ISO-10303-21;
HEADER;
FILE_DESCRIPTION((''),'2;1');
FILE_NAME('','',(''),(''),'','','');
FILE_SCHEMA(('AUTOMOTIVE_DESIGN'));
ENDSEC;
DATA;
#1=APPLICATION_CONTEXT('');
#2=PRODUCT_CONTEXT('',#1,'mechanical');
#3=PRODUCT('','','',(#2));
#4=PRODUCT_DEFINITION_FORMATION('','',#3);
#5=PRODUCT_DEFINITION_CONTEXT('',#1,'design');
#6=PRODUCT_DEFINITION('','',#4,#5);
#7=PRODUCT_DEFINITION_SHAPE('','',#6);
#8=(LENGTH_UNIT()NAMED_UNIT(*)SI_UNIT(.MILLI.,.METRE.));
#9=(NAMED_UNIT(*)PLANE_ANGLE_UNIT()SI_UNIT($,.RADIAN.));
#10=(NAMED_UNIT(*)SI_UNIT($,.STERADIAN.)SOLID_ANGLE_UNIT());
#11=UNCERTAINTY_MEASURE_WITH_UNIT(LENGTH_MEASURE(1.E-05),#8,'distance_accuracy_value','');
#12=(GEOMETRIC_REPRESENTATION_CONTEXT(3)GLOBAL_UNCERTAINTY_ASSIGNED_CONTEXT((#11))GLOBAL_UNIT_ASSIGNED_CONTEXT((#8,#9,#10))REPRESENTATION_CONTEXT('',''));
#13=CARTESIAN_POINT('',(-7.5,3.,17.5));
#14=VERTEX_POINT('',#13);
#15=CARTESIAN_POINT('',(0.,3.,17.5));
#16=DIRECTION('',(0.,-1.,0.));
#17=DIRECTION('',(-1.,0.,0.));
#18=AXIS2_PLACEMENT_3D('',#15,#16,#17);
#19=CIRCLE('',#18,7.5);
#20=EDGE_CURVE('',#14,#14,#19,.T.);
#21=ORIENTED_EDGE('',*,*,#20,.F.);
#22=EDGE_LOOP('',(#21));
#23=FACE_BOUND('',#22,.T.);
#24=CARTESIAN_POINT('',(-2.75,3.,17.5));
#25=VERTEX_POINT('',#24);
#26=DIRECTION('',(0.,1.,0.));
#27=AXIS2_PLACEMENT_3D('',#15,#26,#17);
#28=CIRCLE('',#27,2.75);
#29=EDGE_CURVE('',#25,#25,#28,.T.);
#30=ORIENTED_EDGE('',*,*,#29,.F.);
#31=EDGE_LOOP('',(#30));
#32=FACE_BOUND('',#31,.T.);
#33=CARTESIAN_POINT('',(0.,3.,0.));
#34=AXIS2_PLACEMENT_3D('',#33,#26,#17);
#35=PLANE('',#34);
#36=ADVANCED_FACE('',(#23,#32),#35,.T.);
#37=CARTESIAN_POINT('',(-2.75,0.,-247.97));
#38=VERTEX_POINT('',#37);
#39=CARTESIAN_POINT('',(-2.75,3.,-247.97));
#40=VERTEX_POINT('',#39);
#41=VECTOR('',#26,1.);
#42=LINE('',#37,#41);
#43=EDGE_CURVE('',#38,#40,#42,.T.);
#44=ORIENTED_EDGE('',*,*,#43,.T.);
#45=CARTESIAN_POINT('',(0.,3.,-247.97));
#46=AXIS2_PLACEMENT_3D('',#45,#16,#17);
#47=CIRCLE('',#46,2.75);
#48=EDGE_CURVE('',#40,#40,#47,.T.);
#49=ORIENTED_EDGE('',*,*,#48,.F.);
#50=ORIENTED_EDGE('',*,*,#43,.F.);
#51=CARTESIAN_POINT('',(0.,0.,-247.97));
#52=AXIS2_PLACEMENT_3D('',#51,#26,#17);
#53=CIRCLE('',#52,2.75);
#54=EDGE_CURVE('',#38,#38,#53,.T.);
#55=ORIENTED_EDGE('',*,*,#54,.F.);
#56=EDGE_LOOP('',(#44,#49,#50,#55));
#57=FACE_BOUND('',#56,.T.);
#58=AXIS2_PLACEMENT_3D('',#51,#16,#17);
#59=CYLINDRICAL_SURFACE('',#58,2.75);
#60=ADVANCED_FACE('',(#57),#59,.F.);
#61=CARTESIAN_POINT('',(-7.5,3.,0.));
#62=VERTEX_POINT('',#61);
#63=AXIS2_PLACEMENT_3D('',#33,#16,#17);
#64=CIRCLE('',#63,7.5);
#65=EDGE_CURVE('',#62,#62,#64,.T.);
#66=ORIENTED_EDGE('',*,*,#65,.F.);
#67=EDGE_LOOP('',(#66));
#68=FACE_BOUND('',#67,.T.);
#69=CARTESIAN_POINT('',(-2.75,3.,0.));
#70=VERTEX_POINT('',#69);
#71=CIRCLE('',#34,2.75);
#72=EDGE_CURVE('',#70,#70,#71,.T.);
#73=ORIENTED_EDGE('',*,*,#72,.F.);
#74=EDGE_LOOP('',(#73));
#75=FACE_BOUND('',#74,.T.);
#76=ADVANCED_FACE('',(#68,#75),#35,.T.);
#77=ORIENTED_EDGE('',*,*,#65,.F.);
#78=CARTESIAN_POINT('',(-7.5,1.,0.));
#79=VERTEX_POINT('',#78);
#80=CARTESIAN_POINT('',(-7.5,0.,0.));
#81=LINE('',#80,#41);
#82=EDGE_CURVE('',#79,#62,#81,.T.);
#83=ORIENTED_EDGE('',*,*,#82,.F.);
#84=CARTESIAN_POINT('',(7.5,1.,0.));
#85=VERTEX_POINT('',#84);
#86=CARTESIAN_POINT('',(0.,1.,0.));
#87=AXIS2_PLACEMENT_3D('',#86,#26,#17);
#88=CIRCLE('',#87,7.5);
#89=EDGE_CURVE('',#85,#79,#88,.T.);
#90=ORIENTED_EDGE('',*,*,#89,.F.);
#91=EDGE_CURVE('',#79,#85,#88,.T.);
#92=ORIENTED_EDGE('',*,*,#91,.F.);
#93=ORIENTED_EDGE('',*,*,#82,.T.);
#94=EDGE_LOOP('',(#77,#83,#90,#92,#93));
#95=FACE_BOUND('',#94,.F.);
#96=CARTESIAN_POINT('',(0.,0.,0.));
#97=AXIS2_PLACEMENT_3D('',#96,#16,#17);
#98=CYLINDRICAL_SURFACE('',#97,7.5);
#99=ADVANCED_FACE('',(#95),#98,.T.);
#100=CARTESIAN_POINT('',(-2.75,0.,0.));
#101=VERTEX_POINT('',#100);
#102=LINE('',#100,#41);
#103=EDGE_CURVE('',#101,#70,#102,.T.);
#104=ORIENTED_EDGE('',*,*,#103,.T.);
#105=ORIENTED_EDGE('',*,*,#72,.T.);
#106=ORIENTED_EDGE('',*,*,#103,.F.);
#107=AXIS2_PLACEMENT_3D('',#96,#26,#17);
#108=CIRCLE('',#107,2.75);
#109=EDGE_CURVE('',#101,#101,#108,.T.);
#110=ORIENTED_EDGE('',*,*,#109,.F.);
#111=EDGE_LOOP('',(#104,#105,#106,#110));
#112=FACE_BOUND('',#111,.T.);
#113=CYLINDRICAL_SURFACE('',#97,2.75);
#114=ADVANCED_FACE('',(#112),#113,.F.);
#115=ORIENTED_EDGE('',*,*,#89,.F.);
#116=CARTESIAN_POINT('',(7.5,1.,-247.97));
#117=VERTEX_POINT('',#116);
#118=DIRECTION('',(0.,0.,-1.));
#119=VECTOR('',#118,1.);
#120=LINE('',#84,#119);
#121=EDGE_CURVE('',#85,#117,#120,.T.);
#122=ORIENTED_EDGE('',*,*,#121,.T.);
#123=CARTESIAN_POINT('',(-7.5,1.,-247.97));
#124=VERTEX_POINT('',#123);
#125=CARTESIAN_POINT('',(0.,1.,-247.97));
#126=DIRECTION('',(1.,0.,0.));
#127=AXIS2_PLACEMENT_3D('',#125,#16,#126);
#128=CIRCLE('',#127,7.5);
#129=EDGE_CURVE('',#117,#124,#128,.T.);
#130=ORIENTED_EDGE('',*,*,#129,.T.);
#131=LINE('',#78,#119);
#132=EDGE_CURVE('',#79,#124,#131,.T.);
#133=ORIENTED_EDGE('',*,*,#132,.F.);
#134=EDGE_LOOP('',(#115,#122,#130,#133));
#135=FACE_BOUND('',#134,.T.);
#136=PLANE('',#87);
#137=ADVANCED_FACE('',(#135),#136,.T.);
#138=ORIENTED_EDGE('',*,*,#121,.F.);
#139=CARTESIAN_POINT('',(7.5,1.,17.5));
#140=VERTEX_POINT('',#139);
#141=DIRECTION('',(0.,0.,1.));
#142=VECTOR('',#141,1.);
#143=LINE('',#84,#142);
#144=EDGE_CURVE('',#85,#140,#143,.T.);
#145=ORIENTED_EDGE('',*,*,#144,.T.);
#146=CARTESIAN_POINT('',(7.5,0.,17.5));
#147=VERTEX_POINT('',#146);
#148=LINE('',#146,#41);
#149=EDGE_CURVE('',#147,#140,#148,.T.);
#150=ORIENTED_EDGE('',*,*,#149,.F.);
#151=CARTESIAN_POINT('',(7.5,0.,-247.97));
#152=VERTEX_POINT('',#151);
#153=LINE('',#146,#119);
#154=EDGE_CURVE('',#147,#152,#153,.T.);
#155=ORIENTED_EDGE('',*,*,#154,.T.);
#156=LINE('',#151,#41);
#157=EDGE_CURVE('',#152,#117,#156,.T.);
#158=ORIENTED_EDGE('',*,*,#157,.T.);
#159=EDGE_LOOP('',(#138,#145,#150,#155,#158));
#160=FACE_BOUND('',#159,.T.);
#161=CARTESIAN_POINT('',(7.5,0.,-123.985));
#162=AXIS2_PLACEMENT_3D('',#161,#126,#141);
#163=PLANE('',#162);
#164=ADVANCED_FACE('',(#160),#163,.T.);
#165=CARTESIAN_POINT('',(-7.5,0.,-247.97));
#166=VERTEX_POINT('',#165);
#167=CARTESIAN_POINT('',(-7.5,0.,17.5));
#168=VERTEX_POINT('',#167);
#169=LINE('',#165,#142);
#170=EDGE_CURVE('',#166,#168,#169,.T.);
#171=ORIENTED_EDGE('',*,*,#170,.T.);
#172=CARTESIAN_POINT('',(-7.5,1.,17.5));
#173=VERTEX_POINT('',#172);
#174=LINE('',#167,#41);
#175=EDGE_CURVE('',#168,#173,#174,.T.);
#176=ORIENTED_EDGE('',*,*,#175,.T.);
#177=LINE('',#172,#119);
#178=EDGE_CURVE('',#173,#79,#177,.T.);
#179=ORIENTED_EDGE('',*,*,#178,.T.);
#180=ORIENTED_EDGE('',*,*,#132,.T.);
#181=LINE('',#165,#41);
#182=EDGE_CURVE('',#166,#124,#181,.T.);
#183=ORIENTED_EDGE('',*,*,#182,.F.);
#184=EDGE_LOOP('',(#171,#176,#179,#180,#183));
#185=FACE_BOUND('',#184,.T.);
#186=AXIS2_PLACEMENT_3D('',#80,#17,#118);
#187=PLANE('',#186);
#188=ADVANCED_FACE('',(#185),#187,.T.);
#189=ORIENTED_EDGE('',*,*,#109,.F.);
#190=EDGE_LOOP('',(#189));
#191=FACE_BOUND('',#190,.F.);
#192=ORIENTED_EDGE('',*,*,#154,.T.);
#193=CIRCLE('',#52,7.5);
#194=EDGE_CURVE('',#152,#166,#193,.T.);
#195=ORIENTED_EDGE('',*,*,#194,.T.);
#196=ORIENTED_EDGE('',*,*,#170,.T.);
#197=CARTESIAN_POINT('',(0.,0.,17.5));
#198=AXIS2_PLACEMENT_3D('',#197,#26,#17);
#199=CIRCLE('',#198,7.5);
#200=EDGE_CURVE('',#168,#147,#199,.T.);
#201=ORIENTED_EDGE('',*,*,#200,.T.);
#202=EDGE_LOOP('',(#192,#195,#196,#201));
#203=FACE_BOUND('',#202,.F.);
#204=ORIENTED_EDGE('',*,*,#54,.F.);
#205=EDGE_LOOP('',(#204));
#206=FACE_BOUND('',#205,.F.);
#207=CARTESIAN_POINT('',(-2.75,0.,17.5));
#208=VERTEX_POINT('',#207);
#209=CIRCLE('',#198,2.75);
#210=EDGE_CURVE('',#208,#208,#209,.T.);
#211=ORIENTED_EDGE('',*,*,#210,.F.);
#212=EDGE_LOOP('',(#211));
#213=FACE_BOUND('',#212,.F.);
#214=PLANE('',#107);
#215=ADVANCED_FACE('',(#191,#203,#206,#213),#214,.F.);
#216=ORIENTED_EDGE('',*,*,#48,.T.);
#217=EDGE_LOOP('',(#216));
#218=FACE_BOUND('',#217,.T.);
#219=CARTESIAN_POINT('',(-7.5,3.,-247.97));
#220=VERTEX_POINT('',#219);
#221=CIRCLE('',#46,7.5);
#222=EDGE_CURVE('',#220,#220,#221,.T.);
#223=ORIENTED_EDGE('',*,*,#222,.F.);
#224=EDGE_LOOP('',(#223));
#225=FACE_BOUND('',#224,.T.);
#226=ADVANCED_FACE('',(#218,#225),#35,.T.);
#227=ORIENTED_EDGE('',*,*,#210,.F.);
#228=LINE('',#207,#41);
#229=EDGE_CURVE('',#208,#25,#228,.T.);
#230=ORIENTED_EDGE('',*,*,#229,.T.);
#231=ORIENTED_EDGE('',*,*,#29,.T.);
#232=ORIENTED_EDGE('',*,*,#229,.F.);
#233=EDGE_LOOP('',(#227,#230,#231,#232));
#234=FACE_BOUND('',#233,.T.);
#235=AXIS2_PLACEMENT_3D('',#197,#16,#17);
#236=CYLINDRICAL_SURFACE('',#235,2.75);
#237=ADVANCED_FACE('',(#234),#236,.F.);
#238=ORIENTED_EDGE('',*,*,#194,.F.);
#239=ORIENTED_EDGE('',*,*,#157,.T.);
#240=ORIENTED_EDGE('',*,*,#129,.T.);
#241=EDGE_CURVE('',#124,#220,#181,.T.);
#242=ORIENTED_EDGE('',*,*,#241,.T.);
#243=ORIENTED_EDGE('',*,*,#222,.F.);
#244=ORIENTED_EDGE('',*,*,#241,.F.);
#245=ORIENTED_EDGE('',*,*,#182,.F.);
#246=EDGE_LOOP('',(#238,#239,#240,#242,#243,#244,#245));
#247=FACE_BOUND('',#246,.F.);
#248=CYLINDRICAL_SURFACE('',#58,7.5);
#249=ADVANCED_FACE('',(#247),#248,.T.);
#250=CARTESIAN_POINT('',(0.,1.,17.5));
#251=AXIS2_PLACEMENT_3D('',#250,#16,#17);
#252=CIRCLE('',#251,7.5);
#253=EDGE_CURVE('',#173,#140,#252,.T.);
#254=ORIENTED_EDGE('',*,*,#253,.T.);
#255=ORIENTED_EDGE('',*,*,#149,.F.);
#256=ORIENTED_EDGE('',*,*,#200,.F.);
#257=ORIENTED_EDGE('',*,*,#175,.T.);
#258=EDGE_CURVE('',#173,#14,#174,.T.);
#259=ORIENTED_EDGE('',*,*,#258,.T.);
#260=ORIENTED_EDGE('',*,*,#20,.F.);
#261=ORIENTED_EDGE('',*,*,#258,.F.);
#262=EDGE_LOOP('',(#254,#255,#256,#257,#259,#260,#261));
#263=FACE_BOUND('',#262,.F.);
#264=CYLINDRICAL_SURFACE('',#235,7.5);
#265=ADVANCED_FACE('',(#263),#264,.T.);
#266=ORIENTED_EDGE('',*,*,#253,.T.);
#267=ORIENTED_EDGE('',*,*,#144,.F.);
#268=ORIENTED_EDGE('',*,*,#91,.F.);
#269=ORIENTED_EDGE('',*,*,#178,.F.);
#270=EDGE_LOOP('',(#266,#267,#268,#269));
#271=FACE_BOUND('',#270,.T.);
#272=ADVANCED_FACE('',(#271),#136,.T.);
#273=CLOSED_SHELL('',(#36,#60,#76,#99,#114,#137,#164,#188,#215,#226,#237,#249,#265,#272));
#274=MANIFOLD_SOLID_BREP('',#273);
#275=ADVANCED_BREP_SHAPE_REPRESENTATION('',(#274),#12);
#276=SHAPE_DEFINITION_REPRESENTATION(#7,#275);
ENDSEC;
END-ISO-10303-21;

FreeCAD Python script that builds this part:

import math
import FreeCAD as App
import Part
import Sketcher
Q = App.Units.Quantity

doc = App.newDocument("Part")
params = doc.addObject("Spreadsheet::Sheet", "Params")
for row, (alias, value) in enumerate([
    ("sketch1_diameter", "15 mm"),
    ("sketch1_diameter2", "5.5 mm"),
    ("pad1_length", "3 mm"),
    ("sketch2_diameter", "5.5 mm"),
    ("sketch2_radius", "7.5 mm"),
    ("sketch2_height", "17.5 mm"),
    ("sketch2_height2", "247.97 mm"),
    ("pad2_length", "1 mm"),
], start=1):
    params.set(f"A{row}", alias)
    params.set(f"B{row}", "=" + value)
    params.setAlias(f"B{row}", alias)

body = doc.addObject("PartDesign::Body", "Body")
body.AllowCompound = True

sketch1 = body.newObject("Sketcher::SketchObject", "Sketch")
sketch1.AttachmentSupport = (doc.getObject("XZ_Plane"), [""])
sketch1.MapMode = "FlatFace"
sketch1.addGeometry([
    Part.Circle(App.Vector(0, 0, 0), App.Vector(0, 0, 1), 7.5),
    Part.Circle(App.Vector(0, 0, 0), App.Vector(0, 0, 1), 2.8),
    Part.Circle(App.Vector(0, -248, 0), App.Vector(0, 0, 1), 7.5),
    Part.Circle(App.Vector(0, -248, 0), App.Vector(0, 0, 1), 2.8),
    Part.Circle(App.Vector(0, 17.5, 0), App.Vector(0, 0, 1), 7.5),
    Part.Circle(App.Vector(0, 17.5, 0), App.Vector(0, 0, 1), 2.8),
], False)
sketch1.addConstraint([
    Sketcher.Constraint("Coincident", 0, 3, -1, 1),
    Sketcher.Constraint("Coincident", 1, 3, -1, 1),
    Sketcher.Constraint("Coincident", 3, 3, 2, 3),
    Sketcher.Constraint("Coincident", 5, 3, 4, 3),
    Sketcher.Constraint("Equal", 0, 2),
    Sketcher.Constraint("Equal", 1, 3),
    Sketcher.Constraint("Equal", 2, 4),
    Sketcher.Constraint("Equal", 3, 5),
    Sketcher.Constraint("PointOnObject", 2, 3, -2),
    Sketcher.Constraint("PointOnObject", 4, 3, -2),
    Sketcher.Constraint("Diameter", 0, Q("15 mm")),
    Sketcher.Constraint("Diameter", 1, Q("5.5 mm")),
    Sketcher.Constraint("DistanceY", -1, 1, 4, 3, Q("17.5 mm")),
    Sketcher.Constraint("DistanceY", 2, 3, -1, 1, Q("247.97 mm")),
])
sketch1.setExpression("Constraints[10]", "Params.sketch1_diameter")
sketch1.setExpression("Constraints[11]", "Params.sketch1_diameter2")
pad1 = body.newObject("PartDesign::Pad", "Pad")
pad1.Profile = sketch1
pad1.setExpression("Length", "Params.pad1_length")
pad1.Reversed = True

sketch2 = body.newObject("Sketcher::SketchObject", "Sketch001")
sketch2.AttachmentSupport = (doc.getObject("XZ_Plane"), [""])
sketch2.MapMode = "FlatFace"
sketch2.addGeometry([
    Part.ArcOfCircle(Part.Circle(App.Vector(0, 0, 0), App.Vector(0, 0, 1), 7.5), math.radians(180), math.radians(360)),
    Part.LineSegment(App.Vector(7.5, 0, 0), App.Vector(7.5, -248, 0)),
    Part.ArcOfCircle(Part.Circle(App.Vector(0, -248, 0), App.Vector(0, 0, 1), 7.5), math.radians(0), math.radians(180)),
    Part.LineSegment(App.Vector(-7.5, -248, 0), App.Vector(-7.5, 0, 0)),
    Part.ArcOfCircle(Part.Circle(App.Vector(0, 0, 0), App.Vector(0, 0, 1), 7.5), math.radians(0), math.radians(180)),
    Part.LineSegment(App.Vector(-7.5, 0, 0), App.Vector(-7.5, 17.5, 0)),
    Part.ArcOfCircle(Part.Circle(App.Vector(0, 17.5, 0), App.Vector(0, 0, 1), 7.5), math.radians(0), math.radians(180)),
    Part.LineSegment(App.Vector(7.5, 17.5, 0), App.Vector(7.5, 0, 0)),
    Part.Circle(App.Vector(0, 17.5, 0), App.Vector(0, 0, 1), 2.8),
], False)
sketch2.addConstraint([
    Sketcher.Constraint("Tangent", 0, 2, 1, 1),
    Sketcher.Constraint("Tangent", 1, 2, 2, 1),
    Sketcher.Constraint("Tangent", 2, 2, 3, 1),
    Sketcher.Constraint("Tangent", 3, 2, 0, 1),
    Sketcher.Constraint("Tangent", 4, 2, 5, 1),
    Sketcher.Constraint("Tangent", 5, 2, 6, 2),
    Sketcher.Constraint("Tangent", 6, 1, 7, 1),
    Sketcher.Constraint("Tangent", 7, 2, 4, 1),
    Sketcher.Constraint("Vertical", 1),
    Sketcher.Constraint("Vertical", 3),
    Sketcher.Constraint("Vertical", 5),
    Sketcher.Constraint("Vertical", 7),
    Sketcher.Constraint("Coincident", 0, 3, -1, 1),
    Sketcher.Constraint("Coincident", 4, 3, -1, 1),
    Sketcher.Constraint("Coincident", 8, 3, 6, 3),
    Sketcher.Constraint("Equal", 2, 4),
    Sketcher.Constraint("Diameter", 8, Q("5.5 mm")),
    Sketcher.Constraint("Radius", 0, Q("7.5 mm")),
    Sketcher.Constraint("DistanceY", 5, 1, 5, 2, Q("17.5 mm")),
    Sketcher.Constraint("DistanceY", 1, 2, 1, 1, Q("247.97 mm")),
])
sketch2.setExpression("Constraints[16]", "Params.sketch2_diameter")
sketch2.setExpression("Constraints[17]", "Params.sketch2_radius")
sketch2.setExpression("Constraints[18]", "Params.sketch2_height")
sketch2.setExpression("Constraints[19]", "Params.sketch2_height2")
pad2 = body.newObject("PartDesign::Pad", "Pad001")
pad2.Profile = sketch2
pad2.setExpression("Length", "Params.pad2_length")
pad2.Reversed = True

doc.recompute()
